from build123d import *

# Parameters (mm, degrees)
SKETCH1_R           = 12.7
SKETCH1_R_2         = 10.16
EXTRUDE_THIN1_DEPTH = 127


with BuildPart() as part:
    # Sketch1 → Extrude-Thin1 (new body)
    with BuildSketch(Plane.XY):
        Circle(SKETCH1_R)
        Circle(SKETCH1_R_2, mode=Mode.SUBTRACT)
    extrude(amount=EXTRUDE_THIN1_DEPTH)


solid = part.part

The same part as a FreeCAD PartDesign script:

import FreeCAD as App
import Part
import Sketcher
Q = App.Units.Quantity

doc = App.newDocument("Part")
params = doc.addObject("Spreadsheet::Sheet", "Params")
for row, (alias, value) in enumerate([
    ("sketch1_diameter", "1 in"),
    ("sketch1_diameter2", "0.8 in"),
    ("pad1_length", "5 in"),
], start=1):
    params.set(f"A{row}", alias)
    params.set(f"B{row}", "=" + value)
    params.setAlias(f"B{row}", alias)

body = doc.addObject("PartDesign::Body", "Body")

# Sketch on XY plane
sketch1 = body.newObject("Sketcher::SketchObject", "Sketch")
sketch1.AttachmentSupport = (doc.getObject("XY_Plane"), [""])
sketch1.MapMode = "FlatFace"
sketch1.addGeometry([
    Part.Circle(App.Vector(0, 0, 0), App.Vector(0, 0, 1), 12.7),
    Part.Circle(App.Vector(0, 0, 0), App.Vector(0, 0, 1), 10.16),
], False)
sketch1.addConstraint([
    Sketcher.Constraint("Coincident", 0, 3, -1, 1),
    Sketcher.Constraint("Coincident", 1, 3, -1, 1),
    Sketcher.Constraint("Diameter", 0, Q("1 in")),
    Sketcher.Constraint("Diameter", 1, Q("0.8 in")),
])
sketch1.setExpression("Constraints[2]", "Params.sketch1_diameter")
sketch1.setExpression("Constraints[3]", "Params.sketch1_diameter2")
pad1 = body.newObject("PartDesign::Pad", "Pad")
pad1.Profile = sketch1
pad1.setExpression("Length", "Params.pad1_length")

doc.recompute()
